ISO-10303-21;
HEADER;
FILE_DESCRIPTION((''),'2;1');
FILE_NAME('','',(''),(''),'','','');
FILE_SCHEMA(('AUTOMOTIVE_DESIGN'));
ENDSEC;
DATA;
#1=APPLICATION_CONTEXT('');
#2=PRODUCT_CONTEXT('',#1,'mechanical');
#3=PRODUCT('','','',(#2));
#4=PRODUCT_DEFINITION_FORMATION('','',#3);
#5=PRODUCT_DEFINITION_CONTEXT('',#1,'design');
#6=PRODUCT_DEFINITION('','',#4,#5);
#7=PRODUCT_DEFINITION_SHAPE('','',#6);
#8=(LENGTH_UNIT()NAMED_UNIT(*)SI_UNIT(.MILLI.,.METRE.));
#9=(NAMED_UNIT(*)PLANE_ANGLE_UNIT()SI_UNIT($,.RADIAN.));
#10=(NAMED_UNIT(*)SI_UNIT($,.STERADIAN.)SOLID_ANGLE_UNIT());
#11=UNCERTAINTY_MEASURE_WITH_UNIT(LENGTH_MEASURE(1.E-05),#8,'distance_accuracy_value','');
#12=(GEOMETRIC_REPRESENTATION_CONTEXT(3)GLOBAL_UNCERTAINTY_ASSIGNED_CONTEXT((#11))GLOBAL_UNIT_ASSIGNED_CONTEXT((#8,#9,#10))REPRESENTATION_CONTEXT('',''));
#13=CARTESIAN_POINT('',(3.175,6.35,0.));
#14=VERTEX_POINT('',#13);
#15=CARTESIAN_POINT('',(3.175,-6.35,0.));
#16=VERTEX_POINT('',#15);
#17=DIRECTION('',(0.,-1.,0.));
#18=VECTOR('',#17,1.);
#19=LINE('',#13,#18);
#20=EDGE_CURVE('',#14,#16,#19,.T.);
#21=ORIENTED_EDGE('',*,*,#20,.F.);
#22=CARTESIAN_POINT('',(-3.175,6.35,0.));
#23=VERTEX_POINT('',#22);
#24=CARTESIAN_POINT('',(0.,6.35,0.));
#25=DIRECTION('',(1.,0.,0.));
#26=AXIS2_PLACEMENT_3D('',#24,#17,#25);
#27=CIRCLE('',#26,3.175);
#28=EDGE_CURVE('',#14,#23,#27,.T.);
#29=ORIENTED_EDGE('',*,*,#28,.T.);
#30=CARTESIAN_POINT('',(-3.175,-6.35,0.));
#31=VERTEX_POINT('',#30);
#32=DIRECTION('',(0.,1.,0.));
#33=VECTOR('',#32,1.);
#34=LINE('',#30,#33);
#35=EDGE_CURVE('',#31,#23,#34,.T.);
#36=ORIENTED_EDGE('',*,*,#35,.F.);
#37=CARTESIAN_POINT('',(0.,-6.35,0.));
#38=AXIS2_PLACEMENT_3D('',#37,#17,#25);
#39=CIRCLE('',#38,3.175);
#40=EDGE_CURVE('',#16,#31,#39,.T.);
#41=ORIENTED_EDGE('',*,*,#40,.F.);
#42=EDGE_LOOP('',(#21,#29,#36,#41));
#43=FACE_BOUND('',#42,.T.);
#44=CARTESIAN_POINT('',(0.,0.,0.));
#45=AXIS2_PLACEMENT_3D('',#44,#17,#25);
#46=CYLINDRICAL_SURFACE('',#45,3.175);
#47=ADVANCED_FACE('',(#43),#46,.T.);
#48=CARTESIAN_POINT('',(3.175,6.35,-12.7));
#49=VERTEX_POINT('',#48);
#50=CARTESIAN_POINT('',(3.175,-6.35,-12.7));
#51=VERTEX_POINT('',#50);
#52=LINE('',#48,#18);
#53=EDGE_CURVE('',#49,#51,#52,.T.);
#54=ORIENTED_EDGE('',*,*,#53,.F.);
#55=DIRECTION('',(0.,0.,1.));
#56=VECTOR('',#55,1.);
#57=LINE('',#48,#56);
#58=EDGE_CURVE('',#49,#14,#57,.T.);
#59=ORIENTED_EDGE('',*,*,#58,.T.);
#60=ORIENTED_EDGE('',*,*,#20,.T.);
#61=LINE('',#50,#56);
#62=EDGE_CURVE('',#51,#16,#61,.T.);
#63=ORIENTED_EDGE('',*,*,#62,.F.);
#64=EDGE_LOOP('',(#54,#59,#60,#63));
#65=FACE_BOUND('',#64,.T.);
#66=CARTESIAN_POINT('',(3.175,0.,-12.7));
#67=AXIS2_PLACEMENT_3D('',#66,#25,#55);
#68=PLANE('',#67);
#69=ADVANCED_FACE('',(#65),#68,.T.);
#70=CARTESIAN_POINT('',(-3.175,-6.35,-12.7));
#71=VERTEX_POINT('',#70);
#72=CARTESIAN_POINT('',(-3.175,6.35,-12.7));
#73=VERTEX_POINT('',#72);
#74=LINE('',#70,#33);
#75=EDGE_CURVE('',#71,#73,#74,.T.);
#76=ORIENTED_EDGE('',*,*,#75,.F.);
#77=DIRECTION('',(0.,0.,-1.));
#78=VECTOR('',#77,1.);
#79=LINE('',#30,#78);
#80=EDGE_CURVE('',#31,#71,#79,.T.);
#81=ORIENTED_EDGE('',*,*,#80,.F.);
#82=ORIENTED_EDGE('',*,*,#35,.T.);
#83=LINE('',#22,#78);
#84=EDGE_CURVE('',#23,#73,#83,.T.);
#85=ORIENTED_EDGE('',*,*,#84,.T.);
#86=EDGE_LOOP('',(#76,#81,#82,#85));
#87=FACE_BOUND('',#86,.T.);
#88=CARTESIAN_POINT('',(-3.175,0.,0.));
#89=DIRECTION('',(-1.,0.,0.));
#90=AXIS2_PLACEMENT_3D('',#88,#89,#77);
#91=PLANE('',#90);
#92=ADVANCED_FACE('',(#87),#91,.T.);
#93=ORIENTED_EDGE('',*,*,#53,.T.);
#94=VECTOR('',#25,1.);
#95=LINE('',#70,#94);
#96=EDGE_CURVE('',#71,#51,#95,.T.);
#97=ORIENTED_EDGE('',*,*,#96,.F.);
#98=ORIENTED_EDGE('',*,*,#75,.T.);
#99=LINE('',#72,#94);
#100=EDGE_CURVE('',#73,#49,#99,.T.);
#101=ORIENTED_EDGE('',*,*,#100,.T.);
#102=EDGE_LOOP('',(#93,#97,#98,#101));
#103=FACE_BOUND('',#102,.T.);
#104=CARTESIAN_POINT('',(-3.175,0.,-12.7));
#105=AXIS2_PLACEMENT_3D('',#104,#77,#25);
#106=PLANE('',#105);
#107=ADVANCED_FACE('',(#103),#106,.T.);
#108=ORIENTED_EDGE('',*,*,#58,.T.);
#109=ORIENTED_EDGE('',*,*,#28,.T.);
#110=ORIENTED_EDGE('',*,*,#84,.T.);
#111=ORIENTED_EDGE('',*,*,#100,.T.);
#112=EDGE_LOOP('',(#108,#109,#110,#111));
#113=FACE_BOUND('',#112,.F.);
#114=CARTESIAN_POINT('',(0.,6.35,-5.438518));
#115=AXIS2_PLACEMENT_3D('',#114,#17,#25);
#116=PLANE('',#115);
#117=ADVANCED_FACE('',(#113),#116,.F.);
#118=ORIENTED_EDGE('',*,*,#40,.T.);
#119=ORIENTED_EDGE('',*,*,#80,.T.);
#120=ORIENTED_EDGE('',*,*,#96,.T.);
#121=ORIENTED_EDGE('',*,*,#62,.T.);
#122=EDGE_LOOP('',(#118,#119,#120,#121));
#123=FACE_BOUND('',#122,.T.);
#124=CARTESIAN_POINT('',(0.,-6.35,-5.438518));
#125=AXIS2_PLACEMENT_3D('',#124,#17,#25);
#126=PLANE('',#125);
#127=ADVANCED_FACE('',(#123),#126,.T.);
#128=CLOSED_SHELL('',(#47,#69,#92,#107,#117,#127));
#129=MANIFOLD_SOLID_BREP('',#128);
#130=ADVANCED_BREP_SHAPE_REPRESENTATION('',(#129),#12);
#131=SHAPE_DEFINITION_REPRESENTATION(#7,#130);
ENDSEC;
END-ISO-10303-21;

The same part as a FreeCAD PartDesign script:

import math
import FreeCAD as App
import Part
import Sketcher

V = App.Vector
Q = App.Units.Quantity

doc = App.newDocument("Part")
body = doc.addObject("PartDesign::Body", "Body")

sketch1 = doc.addObject("Sketcher::SketchObject", "Sketch")
body.addObject(sketch1)
sketch1.AttachmentSupport = (doc.XZ_Plane, [""])
sketch1.MapMode = "FlatFace"
sketch1.addGeometry([
    Part.LineSegment(V(-3.2, -12.7, 0), V(3.2, -12.7, 0)),
    Part.LineSegment(V(3.2, -12.7, 0), V(3.2, 0, 0)),
    Part.ArcOfCircle(Part.Circle(V(0, 0, 0), V(0, 0, 1), 3.2), math.radians(0), math.radians(180)),
    Part.LineSegment(V(-3.2, 0, 0), V(-3.2, -12.7, 0)),
], False)
sketch1.addConstraint([
    Sketcher.Constraint("Coincident", 0, 2, 1, 1),
    Sketcher.Constraint("Tangent", 1, 2, 2, 1),
    Sketcher.Constraint("Tangent", 2, 2, 3, 1),
    Sketcher.Constraint("Coincident", 3, 2, 0, 1),
    Sketcher.Constraint("Horizontal", 0),
    Sketcher.Constraint("Vertical", 1),
    Sketcher.Constraint("Vertical", 3),
    Sketcher.Constraint("Coincident", 2, 3, -1, 1),
    Sketcher.Constraint("DistanceY", 1, 1, 1, 2, Q("0.5 in")),
    Sketcher.Constraint("Radius", 2, Q("0.125 in")),
])
pad1 = doc.addObject("PartDesign::Pad", "Pad")
body.addObject(pad1)
pad1.Profile = sketch1
pad1.Type = "TwoLengths"
pad1.Length = Q("0.25 in")
pad1.Length2 = Q("0.25 in")

doc.recompute()
